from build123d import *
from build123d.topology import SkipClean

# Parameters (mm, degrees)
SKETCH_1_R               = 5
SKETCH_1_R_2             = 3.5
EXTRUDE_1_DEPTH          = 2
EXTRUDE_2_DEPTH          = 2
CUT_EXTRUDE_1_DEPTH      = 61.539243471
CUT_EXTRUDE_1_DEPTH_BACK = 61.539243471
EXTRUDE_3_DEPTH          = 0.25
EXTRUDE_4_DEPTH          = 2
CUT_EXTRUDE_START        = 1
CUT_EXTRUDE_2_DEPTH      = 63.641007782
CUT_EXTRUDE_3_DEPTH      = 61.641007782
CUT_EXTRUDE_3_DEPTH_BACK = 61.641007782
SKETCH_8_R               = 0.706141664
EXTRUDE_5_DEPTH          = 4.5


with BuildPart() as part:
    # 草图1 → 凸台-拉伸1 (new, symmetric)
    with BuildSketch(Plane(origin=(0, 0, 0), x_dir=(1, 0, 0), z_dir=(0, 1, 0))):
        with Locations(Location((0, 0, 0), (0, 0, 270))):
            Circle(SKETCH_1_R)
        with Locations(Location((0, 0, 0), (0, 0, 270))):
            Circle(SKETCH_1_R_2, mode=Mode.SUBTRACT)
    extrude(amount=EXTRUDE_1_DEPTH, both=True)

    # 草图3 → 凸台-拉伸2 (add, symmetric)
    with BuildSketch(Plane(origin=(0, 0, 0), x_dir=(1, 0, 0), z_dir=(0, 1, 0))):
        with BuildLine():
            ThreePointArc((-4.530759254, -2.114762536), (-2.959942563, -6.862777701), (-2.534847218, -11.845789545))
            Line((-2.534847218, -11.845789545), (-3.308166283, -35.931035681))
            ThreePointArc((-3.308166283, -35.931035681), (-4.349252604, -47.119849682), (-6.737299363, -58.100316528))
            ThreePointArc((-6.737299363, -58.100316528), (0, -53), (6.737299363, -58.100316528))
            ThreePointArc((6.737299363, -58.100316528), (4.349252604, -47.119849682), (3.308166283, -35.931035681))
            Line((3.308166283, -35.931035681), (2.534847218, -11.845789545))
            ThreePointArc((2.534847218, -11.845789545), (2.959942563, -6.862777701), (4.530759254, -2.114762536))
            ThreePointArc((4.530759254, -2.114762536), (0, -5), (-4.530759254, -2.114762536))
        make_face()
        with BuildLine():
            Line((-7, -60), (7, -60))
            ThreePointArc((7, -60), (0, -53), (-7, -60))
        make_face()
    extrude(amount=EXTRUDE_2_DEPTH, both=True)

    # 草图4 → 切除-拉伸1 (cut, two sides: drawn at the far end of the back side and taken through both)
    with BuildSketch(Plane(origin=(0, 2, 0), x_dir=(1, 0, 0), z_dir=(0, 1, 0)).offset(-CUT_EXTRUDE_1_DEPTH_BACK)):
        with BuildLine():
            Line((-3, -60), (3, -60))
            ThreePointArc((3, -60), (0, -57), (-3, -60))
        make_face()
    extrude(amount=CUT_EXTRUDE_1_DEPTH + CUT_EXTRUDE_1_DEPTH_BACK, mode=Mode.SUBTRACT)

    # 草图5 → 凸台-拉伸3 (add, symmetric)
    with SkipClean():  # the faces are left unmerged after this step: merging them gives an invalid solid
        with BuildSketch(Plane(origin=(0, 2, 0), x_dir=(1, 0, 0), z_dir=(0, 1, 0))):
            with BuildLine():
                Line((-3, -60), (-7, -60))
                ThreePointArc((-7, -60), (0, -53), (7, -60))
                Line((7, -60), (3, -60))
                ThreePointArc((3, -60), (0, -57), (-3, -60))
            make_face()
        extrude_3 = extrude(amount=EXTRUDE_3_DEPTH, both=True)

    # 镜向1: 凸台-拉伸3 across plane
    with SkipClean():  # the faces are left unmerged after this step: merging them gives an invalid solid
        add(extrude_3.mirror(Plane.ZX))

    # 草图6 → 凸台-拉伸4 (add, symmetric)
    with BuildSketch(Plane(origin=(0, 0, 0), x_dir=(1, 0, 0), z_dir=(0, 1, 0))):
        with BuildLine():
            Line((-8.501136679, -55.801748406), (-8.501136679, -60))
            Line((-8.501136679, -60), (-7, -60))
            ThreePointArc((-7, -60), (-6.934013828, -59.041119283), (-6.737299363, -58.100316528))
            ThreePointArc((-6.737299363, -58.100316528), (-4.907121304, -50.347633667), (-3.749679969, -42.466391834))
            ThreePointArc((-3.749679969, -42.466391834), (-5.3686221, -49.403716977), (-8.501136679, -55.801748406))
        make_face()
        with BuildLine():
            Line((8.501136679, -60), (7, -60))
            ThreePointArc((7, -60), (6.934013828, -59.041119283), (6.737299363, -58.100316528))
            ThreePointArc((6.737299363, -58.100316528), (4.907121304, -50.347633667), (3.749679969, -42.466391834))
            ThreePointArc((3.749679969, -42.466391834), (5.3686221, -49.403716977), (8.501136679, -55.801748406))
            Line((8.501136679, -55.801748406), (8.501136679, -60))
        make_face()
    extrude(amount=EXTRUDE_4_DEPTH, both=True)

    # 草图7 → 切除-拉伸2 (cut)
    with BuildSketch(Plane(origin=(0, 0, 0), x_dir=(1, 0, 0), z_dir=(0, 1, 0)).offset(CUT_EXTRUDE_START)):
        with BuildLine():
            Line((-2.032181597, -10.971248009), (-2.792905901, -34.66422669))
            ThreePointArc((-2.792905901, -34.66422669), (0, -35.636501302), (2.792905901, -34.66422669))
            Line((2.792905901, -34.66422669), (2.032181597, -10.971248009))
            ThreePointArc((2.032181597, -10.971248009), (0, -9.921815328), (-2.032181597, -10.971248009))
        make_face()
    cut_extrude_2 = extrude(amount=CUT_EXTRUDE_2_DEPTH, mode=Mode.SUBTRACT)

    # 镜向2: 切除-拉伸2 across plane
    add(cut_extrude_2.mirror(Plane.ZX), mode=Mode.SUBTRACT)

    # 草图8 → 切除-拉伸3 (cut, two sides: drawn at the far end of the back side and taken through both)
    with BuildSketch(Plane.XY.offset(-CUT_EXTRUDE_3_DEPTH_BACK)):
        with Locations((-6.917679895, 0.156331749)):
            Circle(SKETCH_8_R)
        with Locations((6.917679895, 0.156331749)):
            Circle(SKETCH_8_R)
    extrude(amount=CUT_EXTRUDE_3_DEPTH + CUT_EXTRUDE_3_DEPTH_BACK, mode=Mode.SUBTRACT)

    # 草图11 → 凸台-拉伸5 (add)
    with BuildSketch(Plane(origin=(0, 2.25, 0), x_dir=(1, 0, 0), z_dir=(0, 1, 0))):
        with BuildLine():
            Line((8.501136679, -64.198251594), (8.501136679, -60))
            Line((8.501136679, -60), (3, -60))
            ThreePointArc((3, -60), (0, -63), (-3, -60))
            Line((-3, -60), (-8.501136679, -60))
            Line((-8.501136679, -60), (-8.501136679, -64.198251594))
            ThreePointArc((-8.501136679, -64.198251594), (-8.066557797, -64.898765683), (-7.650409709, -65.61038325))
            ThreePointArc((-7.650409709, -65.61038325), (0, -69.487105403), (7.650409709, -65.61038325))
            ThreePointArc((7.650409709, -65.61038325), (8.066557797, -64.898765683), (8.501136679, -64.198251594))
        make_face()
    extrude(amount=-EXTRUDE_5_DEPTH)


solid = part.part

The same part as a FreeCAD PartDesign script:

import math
import FreeCAD as App
import Part
import Sketcher
from FreeCAD import Vector
Q = App.Units.Quantity

doc = App.newDocument("Part")
params = doc.addObject("Spreadsheet::Sheet", "Params")
for row, (alias, value) in enumerate([
    ("sketch1_diameter", "10 mm"),
    ("sketch1_diameter2", "7 mm"),
    ("pad1_length", "4 mm"),
    ("sketch2_radius", "7 mm"),
    ("sketch2_radius2", "7 mm"),
    ("sketch2_radius3", "5 mm"),
    ("pad2_length", "4 mm"),
    ("sketch3_radius", "3 mm"),
    ("sketch4_radius", "3 mm"),
    ("sketch4_radius2", "7 mm"),
    ("pad3_length", "0.5 mm"),
    ("sketch5_radius", "7 mm"),
    ("sketch5_radius2", "7 mm"),
    ("pad4_length", "4 mm"),
    ("pocket2_length", "63.641008 mm"),
    ("sketch8_radius", "3 mm"),
    ("pad5_length", "4.5 mm"),
], start=1):
    params.set(f"A{row}", alias)
    params.set(f"B{row}", "=" + value)
    params.setAlias(f"B{row}", alias)

body = doc.addObject("PartDesign::Body", "Body")

# Sketch on XZ plane
sketch1 = body.newObject("Sketcher::SketchObject", "Sketch")
sketch1.AttachmentSupport = (doc.getObject("XZ_Plane"), [""])
sketch1.MapMode = "FlatFace"
sketch1.addGeometry(Part.Circle(Vector(0, 0, 0), Vector(0, 0, 1), 5), False)
sketch1.addGeometry(Part.Circle(Vector(0, 0, 0), Vector(0, 0, 1), 3.5), False)
sketch1.addConstraint(Sketcher.Constraint("Coincident", 0, 3, -1, 1))
sketch1.addConstraint(Sketcher.Constraint("Coincident", 1, 3, -1, 1))
sketch1.addConstraint(Sketcher.Constraint("Diameter", 0, Q("10 mm")))
sketch1.addConstraint(Sketcher.Constraint("Diameter", 1, Q("7 mm")))
sketch1.setExpression("Constraints[2]", "Params.sketch1_diameter")
sketch1.setExpression("Constraints[3]", "Params.sketch1_diameter2")
pad1 = body.newObject("PartDesign::Pad", "Pad")
pad1.Profile = sketch1
pad1.setExpression("Length", "Params.pad1_length")
pad1.Midplane = True

# Sketch on XZ plane
sketch2 = body.newObject("Sketcher::SketchObject", "Sketch001")
sketch2.AttachmentSupport = (doc.getObject("XZ_Plane"), [""])
sketch2.MapMode = "FlatFace"
sketch2.addGeometry(Part.ArcOfCircle(Part.Circle(Vector(-23.908658, 11.159528, 0), Vector(0, 0, 1), 21.384826), math.radians(-25.021132), math.radians(1.838997)), False)
sketch2.addGeometry(Part.LineSegment(Vector(-2.534847, 11.84579, 0), Vector(-3.308166, 35.931036, 0)), False)
sketch2.addGeometry(Part.ArcOfCircle(Part.Circle(Vector(-95.905638, 32.957955, 0), Vector(0, 0, 1), 92.645189), math.radians(1.838997), math.radians(15.746601)), False)
sketch2.addGeometry(Part.ArcOfCircle(Part.Circle(Vector(0, 60, 0), Vector(0, 0, 1), 7), math.radians(180), math.radians(195.746601)), False)
sketch2.addGeometry(Part.LineSegment(Vector(-7, 60, 0), Vector(7, 60, 0)), False)
sketch2.addGeometry(Part.ArcOfCircle(Part.Circle(Vector(0, 60, 0), Vector(0, 0, 1), 7), math.radians(-15.746601), math.radians(0)), False)
sketch2.addGeometry(Part.ArcOfCircle(Part.Circle(Vector(95.905638, 32.957955, 0), Vector(0, 0, 1), 92.645189), math.radians(164.253399), math.radians(178.161003)), False)
sketch2.addGeometry(Part.LineSegment(Vector(3.308166, 35.931036, 0), Vector(2.534847, 11.84579, 0)), False)
sketch2.addGeometry(Part.ArcOfCircle(Part.Circle(Vector(23.908658, 11.159528, 0), Vector(0, 0, 1), 21.384826), math.radians(178.161003), math.radians(205.021132)), False)
sketch2.addGeometry(Part.ArcOfCircle(Part.Circle(Vector(0, 0, 0), Vector(0, 0, 1), 5), math.radians(25.021132), math.radians(154.978868)), False)
sketch2.addConstraint(Sketcher.Constraint("Coincident", 0, 2, 1, 1))
sketch2.addConstraint(Sketcher.Constraint("Coincident", 1, 2, 2, 1))
sketch2.addConstraint(Sketcher.Constraint("Coincident", 2, 2, 3, 2))
sketch2.addConstraint(Sketcher.Constraint("Coincident", 3, 1, 4, 1))
sketch2.addConstraint(Sketcher.Constraint("Coincident", 4, 2, 5, 2))
sketch2.addConstraint(Sketcher.Constraint("Coincident", 5, 1, 6, 1))
sketch2.addConstraint(Sketcher.Constraint("Coincident", 6, 2, 7, 1))
sketch2.addConstraint(Sketcher.Constraint("Coincident", 7, 2, 8, 1))
sketch2.addConstraint(Sketcher.Constraint("Coincident", 8, 2, 9, 1))
sketch2.addConstraint(Sketcher.Constraint("Coincident", 9, 2, 0, 1))
sketch2.addConstraint(Sketcher.Constraint("Horizontal", 4))
sketch2.addConstraint(Sketcher.Constraint("Coincident", 9, 3, -1, 1))
sketch2.addConstraint(Sketcher.Constraint("Coincident", 5, 3, 3, 3))
sketch2.addConstraint(Sketcher.Constraint("PointOnObject", 3, 3, -2))
sketch2.addConstraint(Sketcher.Constraint("Radius", 3, Q("7 mm")))
sketch2.addConstraint(Sketcher.Constraint("Radius", 5, Q("7 mm")))
sketch2.addConstraint(Sketcher.Constraint("Radius", 9, Q("5 mm")))
sketch2.addConstraint(Sketcher.Constraint("DistanceY", -1, 1, 3, 3, Q("60 mm")))
sketch2.addConstraint(Sketcher.Constraint("DistanceY", -1, 1, 3, 1, Q("60 mm")))
sketch2.addConstraint(Sketcher.Constraint("Radius", 2, Q("92.645189 mm")))
sketch2.addConstraint(Sketcher.Constraint("Radius", 6, Q("92.645189 mm")))
sketch2.addConstraint(Sketcher.Constraint("Radius", 0, Q("21.384826 mm")))
sketch2.addConstraint(Sketcher.Constraint("Radius", 8, Q("21.384826 mm")))
sketch2.addConstraint(Sketcher.Constraint("DistanceX", 2, 2, -1, 1, Q("6.737299 mm")))
sketch2.addConstraint(Sketcher.Constraint("DistanceX", -1, 1, 5, 1, Q("6.737299 mm")))
sketch2.addConstraint(Sketcher.Constraint("DistanceX", 8, 2, 8, 3, Q("19.377899 mm")))
sketch2.addConstraint(Sketcher.Constraint("DistanceX", 0, 3, 9, 2, Q("19.377899 mm")))
sketch2.addConstraint(Sketcher.Constraint("DistanceX", 0, 3, -1, 1, Q("23.908658 mm")))
sketch2.addConstraint(Sketcher.Constraint("DistanceX", -1, 1, 8, 3, Q("23.908658 mm")))
sketch2.addConstraint(Sketcher.Constraint("DistanceY", -1, 1, 0, 2, Q("11.84579 mm")))
sketch2.addConstraint(Sketcher.Constraint("DistanceY", -1, 1, 7, 2, Q("11.84579 mm")))
sketch2.addConstraint(Sketcher.Constraint("DistanceX", 2, 3, 0, 3, Q("71.996979 mm")))
sketch2.addConstraint(Sketcher.Constraint("DistanceX", 8, 3, 6, 3, Q("71.996979 mm")))
sketch2.addConstraint(Sketcher.Constraint("DistanceX", 1, 2, 0, 2, Q("0.773319 mm")))
sketch2.addConstraint(Sketcher.Constraint("DistanceY", 6, 2, 5, 1, Q("22.169281 mm")))
sketch2.setExpression("Constraints[14]", "Params.sketch2_radius")
sketch2.setExpression("Constraints[15]", "Params.sketch2_radius2")
sketch2.setExpression("Constraints[16]", "Params.sketch2_radius3")
pad2 = body.newObject("PartDesign::Pad", "Pad001")
pad2.Profile = sketch2
pad2.setExpression("Length", "Params.pad2_length")
pad2.Midplane = True

# Sketch on XZ plane
sketch3 = body.newObject("Sketcher::SketchObject", "Sketch002")
sketch3.AttachmentSupport = (doc.getObject("XZ_Plane"), [""])
sketch3.MapMode = "FlatFace"
sketch3.AttachmentOffset = App.Placement(Vector(0, 0, -2), App.Rotation())
sketch3.addGeometry(Part.LineSegment(Vector(-3, 60, 0), Vector(3, 60, 0)), False)
sketch3.addGeometry(Part.ArcOfCircle(Part.Circle(Vector(0, 60, 0), Vector(0, 0, 1), 3), math.radians(180), math.radians(360)), False)
sketch3.addConstraint(Sketcher.Constraint("Coincident", 0, 1, 1, 1))
sketch3.addConstraint(Sketcher.Constraint("Coincident", 1, 2, 0, 2))
sketch3.addConstraint(Sketcher.Constraint("Horizontal", 0))
sketch3.addConstraint(Sketcher.Constraint("PointOnObject", 1, 3, -2))
sketch3.addConstraint(Sketcher.Constraint("Horizontal", 1, 3, 0, 1))
sketch3.addConstraint(Sketcher.Constraint("Radius", 1, Q("3 mm")))
sketch3.addConstraint(Sketcher.Constraint("DistanceY", -1, 1, 1, 3, Q("60 mm")))
sketch3.setExpression("Constraints[5]", "Params.sketch3_radius")
pocket1 = body.newObject("PartDesign::Pocket", "Pocket")
pocket1.Profile = sketch3
pocket1.Type = "ThroughAll"
pocket1.Midplane = True

# Sketch on XZ plane
sketch4 = body.newObject("Sketcher::SketchObject", "Sketch003")
sketch4.AttachmentSupport = (doc.getObject("XZ_Plane"), [""])
sketch4.MapMode = "FlatFace"
sketch4.AttachmentOffset = App.Placement(Vector(0, 0, -2), App.Rotation())
sketch4.addGeometry(Part.LineSegment(Vector(-7, 60, 0), Vector(-3, 60, 0)), False)
sketch4.addGeometry(Part.ArcOfCircle(Part.Circle(Vector(0, 60, 0), Vector(0, 0, 1), 3), math.radians(180), math.radians(360)), False)
sketch4.addGeometry(Part.LineSegment(Vector(3, 60, 0), Vector(7, 60, 0)), False)
sketch4.addGeometry(Part.ArcOfCircle(Part.Circle(Vector(0, 60, 0), Vector(0, 0, 1), 7), math.radians(180), math.radians(360)), False)
sketch4.addConstraint(Sketcher.Constraint("Coincident", 0, 2, 1, 1))
sketch4.addConstraint(Sketcher.Constraint("Coincident", 1, 2, 2, 1))
sketch4.addConstraint(Sketcher.Constraint("Coincident", 2, 2, 3, 2))
sketch4.addConstraint(Sketcher.Constraint("Coincident", 3, 1, 0, 1))
sketch4.addConstraint(Sketcher.Constraint("Horizontal", 0))
sketch4.addConstraint(Sketcher.Constraint("Horizontal", 2))
sketch4.addConstraint(Sketcher.Constraint("Coincident", 3, 3, 1, 3))
sketch4.addConstraint(Sketcher.Constraint("Symmetric", 0, 2, 1, 2, -2))
sketch4.addConstraint(Sketcher.Constraint("Horizontal", 3, 3, 0, 2))
sketch4.addConstraint(Sketcher.Constraint("Radius", 1, Q("3 mm")))
sketch4.addConstraint(Sketcher.Constraint("Radius", 3, Q("7 mm")))
sketch4.addConstraint(Sketcher.Constraint("DistanceY", -1, 1, 1, 3, Q("60 mm")))
sketch4.setExpression("Constraints[9]", "Params.sketch4_radius")
sketch4.setExpression("Constraints[10]", "Params.sketch4_radius2")
pad3 = body.newObject("PartDesign::Pad", "Pad002")
pad3.Profile = sketch4
pad3.setExpression("Length", "Params.pad3_length")
pad3.Midplane = True
doc.recompute()

mirrored = body.newObject("PartDesign::Mirrored", "Mirrored")
mirrored.Originals = [pad3]
mirrored.MirrorPlane = (doc.getObject("XZ_Plane"), [""])
body.Tip = mirrored

# Sketch on XZ plane
sketch5 = body.newObject("Sketcher::SketchObject", "Sketch004")
sketch5.AttachmentSupport = (doc.getObject("XZ_Plane"), [""])
sketch5.MapMode = "FlatFace"
sketch5.addGeometry(Part.LineSegment(Vector(-8.501137, 55.801748, 0), Vector(-8.501137, 60, 0)), False)
sketch5.addGeometry(Part.LineSegment(Vector(-8.501137, 60, 0), Vector(-7, 60, 0)), False)
sketch5.addGeometry(Part.ArcOfCircle(Part.Circle(Vector(0, 60, 0), Vector(0, 0, 1), 7), math.radians(-180), math.radians(-164.253399)), False)
sketch5.addGeometry(Part.ArcOfCircle(Part.Circle(Vector(-95.905638, 32.957955, 0), Vector(0, 0, 1), 92.645189), math.radians(5.8908), math.radians(15.746601)), False)
sketch5.addGeometry(Part.ArcOfCircle(Part.Circle(Vector(-35.119863, 38.803195, 0), Vector(0, 0, 1), 31.583341), math.radians(6.660446), math.radians(32.562048)), False)
sketch5.addGeometry(Part.LineSegment(Vector(7, 60, 0), Vector(8.501137, 60, 0)), False)
sketch5.addGeometry(Part.LineSegment(Vector(8.501137, 60, 0), Vector(8.501137, 55.801748, 0)), False)
sketch5.addGeometry(Part.ArcOfCircle(Part.Circle(Vector(35.119863, 38.803195, 0), Vector(0, 0, 1), 31.583341), math.radians(147.437952), math.radians(173.339554)), False)
sketch5.addGeometry(Part.ArcOfCircle(Part.Circle(Vector(95.905638, 32.957955, 0), Vector(0, 0, 1), 92.645189), math.radians(164.253399), math.radians(174.1092)), False)
sketch5.addGeometry(Part.ArcOfCircle(Part.Circle(Vector(0, 60, 0), Vector(0, 0, 1), 7), math.radians(-15.746601), math.radians(0)), False)
sketch5.addConstraint(Sketcher.Constraint("Coincident", 0, 2, 1, 1))
sketch5.addConstraint(Sketcher.Constraint("Coincident", 1, 2, 2, 1))
sketch5.addConstraint(Sketcher.Constraint("Coincident", 2, 2, 3, 2))
sketch5.addConstraint(Sketcher.Constraint("Coincident", 3, 1, 4, 1))
sketch5.addConstraint(Sketcher.Constraint("Coincident", 4, 2, 0, 1))
sketch5.addConstraint(Sketcher.Constraint("Coincident", 5, 2, 6, 1))
sketch5.addConstraint(Sketcher.Constraint("Coincident", 6, 2, 7, 1))
sketch5.addConstraint(Sketcher.Constraint("Coincident", 7, 2, 8, 2))
sketch5.addConstraint(Sketcher.Constraint("Coincident", 8, 1, 9, 1))
sketch5.addConstraint(Sketcher.Constraint("Coincident", 9, 2, 5, 1))
sketch5.addConstraint(Sketcher.Constraint("Vertical", 0))
sketch5.addConstraint(Sketcher.Constraint("Horizontal", 1))
sketch5.addConstraint(Sketcher.Constraint("Horizontal", 5))
sketch5.addConstraint(Sketcher.Constraint("Vertical", 6))
sketch5.addConstraint(Sketcher.Constraint("Coincident", 9, 3, 2, 3))
sketch5.addConstraint(Sketcher.Constraint("PointOnObject", 2, 3, -2))
sketch5.addConstraint(Sketcher.Constraint("Radius", 2, Q("7 mm")))
sketch5.addConstraint(Sketcher.Constraint("Radius", 9, Q("7 mm")))
sketch5.addConstraint(Sketcher.Constraint("DistanceY", -1, 1, 2, 3, Q("60 mm")))
sketch5.addConstraint(Sketcher.Constraint("DistanceY", -1, 1, 0, 2, Q("60 mm")))
sketch5.addConstraint(Sketcher.Constraint("DistanceY", -1, 1, 5, 2, Q("60 mm")))
sketch5.addConstraint(Sketcher.Constraint("Radius", 3, Q("92.645189 mm")))
sketch5.addConstraint(Sketcher.Constraint("Radius", 4, Q("31.583341 mm")))
sketch5.addConstraint(Sketcher.Constraint("Radius", 7, Q("31.583341 mm")))
sketch5.addConstraint(Sketcher.Constraint("Radius", 8, Q("92.645189 mm")))
sketch5.addConstraint(Sketcher.Constraint("DistanceX", 0, 2, 7, 3, Q("43.621 mm")))
sketch5.addConstraint(Sketcher.Constraint("DistanceY", 0, 1, 0, 2, Q("4.198252 mm")))
sketch5.addConstraint(Sketcher.Constraint("DistanceY", 6, 2, 6, 1, Q("4.198252 mm")))
sketch5.addConstraint(Sketcher.Constraint("DistanceX", 2, 2, -1, 1, Q("6.737299 mm")))
sketch5.addConstraint(Sketcher.Constraint("DistanceX", -1, 1, 8, 1, Q("6.737299 mm")))
sketch5.addConstraint(Sketcher.Constraint("DistanceX", 3, 3, 7, 3, Q("131.025501 mm")))
sketch5.addConstraint(Sketcher.Constraint("DistanceX", 4, 3, 8, 3, Q("131.025501 mm")))
sketch5.addConstraint(Sketcher.Constraint("DistanceX", 1, 1, 1, 2, Q("1.501137 mm")))
sketch5.addConstraint(Sketcher.Constraint("DistanceX", 5, 1, 5, 2, Q("1.501137 mm")))
sketch5.addConstraint(Sketcher.Constraint("DistanceX", 3, 1, -1, 1, Q("3.74968 mm")))
sketch5.setExpression("Constraints[16]", "Params.sketch5_radius")
sketch5.setExpression("Constraints[17]", "Params.sketch5_radius2")
pad4 = body.newObject("PartDesign::Pad", "Pad003")
pad4.Profile = sketch5
pad4.setExpression("Length", "Params.pad4_length")
pad4.Midplane = True

# Sketch on XZ plane
sketch6 = body.newObject("Sketcher::SketchObject", "Sketch005")
sketch6.AttachmentSupport = (doc.getObject("XZ_Plane"), [""])
sketch6.MapMode = "FlatFace"
sketch6.AttachmentOffset = App.Placement(Vector(0, 0, -1), App.Rotation())
sketch6.addGeometry(Part.LineSegment(Vector(-2, 11, 0), Vector(-2.8, 34.7, 0)), False)
sketch6.addGeometry(Part.ArcOfCircle(Part.Circle(Vector(0, 31.1, 0), Vector(0, 0, 1), 4.5), math.radians(52), math.radians(128)), False)
sketch6.addGeometry(Part.LineSegment(Vector(2.8, 34.7, 0), Vector(2, 11, 0)), False)
sketch6.addGeometry(Part.ArcOfCircle(Part.Circle(Vector(0, 12.4, 0), Vector(0, 0, 1), 2.5), math.radians(-145), math.radians(-35)), False)
sketch6.addConstraint(Sketcher.Constraint("Coincident", 0, 2, 1, 2))
sketch6.addConstraint(Sketcher.Constraint("Coincident", 1, 1, 2, 1))
sketch6.addConstraint(Sketcher.Constraint("Coincident", 2, 2, 3, 2))
sketch6.addConstraint(Sketcher.Constraint("Coincident", 3, 1, 0, 1))
sketch6.addConstraint(Sketcher.Constraint("Symmetric", 0, 2, 1, 1, -2))
sketch6.addConstraint(Sketcher.Constraint("Symmetric", 2, 2, 3, 1, -2))
sketch6.addConstraint(Sketcher.Constraint("Radius", 1, Q("4.497516 mm")))
sketch6.addConstraint(Sketcher.Constraint("Radius", 3, Q("2.492333 mm")))
sketch6.addConstraint(Sketcher.Constraint("DistanceY", 2, 2, 3, 3, Q("1.4429 mm")))
sketch6.addConstraint(Sketcher.Constraint("Distance", 0, Q("23.705188 mm")))
sketch6.addConstraint(Sketcher.Constraint("DistanceY", -1, 1, 3, 3, Q("12.414148 mm")))
sketch6.addConstraint(Sketcher.Constraint("DistanceY", 1, 3, 0, 2, Q("3.525241 mm")))
pocket2 = body.newObject("PartDesign::Pocket", "Pocket001")
pocket2.Profile = sketch6
pocket2.setExpression("Length", "Params.pocket2_length")
doc.recompute()

mirrored2 = body.newObject("PartDesign::Mirrored", "Mirrored001")
mirrored2.Originals = [pocket2]
mirrored2.MirrorPlane = (doc.getObject("XZ_Plane"), [""])
body.Tip = mirrored2

# Sketch on XY plane
sketch7 = body.newObject("Sketcher::SketchObject", "Sketch006")
sketch7.AttachmentSupport = (doc.getObject("XY_Plane"), [""])
sketch7.MapMode = "FlatFace"
sketch7.addGeometry(Part.Circle(Vector(-6.9, 0.2, 0), Vector(0, 0, 1), 0.7), False)
sketch7.addGeometry(Part.Circle(Vector(6.9, 0.2, 0), Vector(0, 0, 1), 0.7), False)
sketch7.addConstraint(Sketcher.Constraint("Equal", 0, 1))
sketch7.addConstraint(Sketcher.Constraint("Symmetric", 0, 3, 1, 3, -2))
sketch7.addConstraint(Sketcher.Constraint("Diameter", 0, Q("1.412283 mm")))
sketch7.addConstraint(Sketcher.Constraint("DistanceX", 0, 3, -1, 1, Q("6.91768 mm")))
sketch7.addConstraint(Sketcher.Constraint("DistanceY", -1, 1, 0, 3, Q("0.156332 mm")))
pocket3 = body.newObject("PartDesign::Pocket", "Pocket002")
pocket3.Profile = sketch7
pocket3.Type = "ThroughAll"
pocket3.Midplane = True

# Sketch on XZ plane
sketch8 = body.newObject("Sketcher::SketchObject", "Sketch007")
sketch8.AttachmentSupport = (doc.getObject("XZ_Plane"), [""])
sketch8.MapMode = "FlatFace"
sketch8.AttachmentOffset = App.Placement(Vector(0, 0, -2.25), App.Rotation())
sketch8.addGeometry(Part.LineSegment(Vector(8.5, 64.2, 0), Vector(8.5, 60, 0)), False)
sketch8.addGeometry(Part.LineSegment(Vector(8.5, 60, 0), Vector(3, 60, 0)), False)
sketch8.addGeometry(Part.ArcOfCircle(Part.Circle(Vector(0, 60, 0), Vector(0, 0, 1), 3), math.radians(0), math.radians(180)), False)
sketch8.addGeometry(Part.LineSegment(Vector(-3, 60, 0), Vector(-8.5, 60, 0)), False)
sketch8.addGeometry(Part.LineSegment(Vector(-8.5, 60, 0), Vector(-8.5, 64.2, 0)), False)
sketch8.addGeometry(Part.ArcOfCircle(Part.Circle(Vector(-35.1, 81.2, 0), Vector(0, 0, 1), 31.6), math.radians(-32.56), math.radians(-29.57)), False)
sketch8.addGeometry(Part.ArcOfCircle(Part.Circle(Vector(0, 60, 0), Vector(0, 0, 1), 9.5), math.radians(36), math.radians(144)), False)
sketch8.addGeometry(Part.ArcOfCircle(Part.Circle(Vector(35.1, 81.2, 0), Vector(0, 0, 1), 31.6), math.radians(-150.43), math.radians(-147.44)), False)
sketch8.addConstraint(Sketcher.Constraint("Coincident", 0, 2, 1, 1))
sketch8.addConstraint(Sketcher.Constraint("Coincident", 1, 2, 2, 1))
sketch8.addConstraint(Sketcher.Constraint("Coincident", 2, 2, 3, 1))
sketch8.addConstraint(Sketcher.Constraint("Coincident", 3, 2, 4, 1))
sketch8.addConstraint(Sketcher.Constraint("Coincident", 4, 2, 5, 1))
sketch8.addConstraint(Sketcher.Constraint("Coincident", 5, 2, 6, 2))
sketch8.addConstraint(Sketcher.Constraint("Coincident", 6, 1, 7, 1))
sketch8.addConstraint(Sketcher.Constraint("Coincident", 7, 2, 0, 1))
sketch8.addConstraint(Sketcher.Constraint("Vertical", 0))
sketch8.addConstraint(Sketcher.Constraint("Horizontal", 1))
sketch8.addConstraint(Sketcher.Constraint("Horizontal", 3))
sketch8.addConstraint(Sketcher.Constraint("Vertical", 4))
sketch8.addConstraint(Sketcher.Constraint("Coincident", 6, 3, 2, 3))
sketch8.addConstraint(Sketcher.Constraint("Equal", 5, 7))
sketch8.addConstraint(Sketcher.Constraint("Symmetric", 5, 3, 7, 3, -2))
sketch8.addConstraint(Sketcher.Constraint("Symmetric", 1, 2, 2, 2, -2))
sketch8.addConstraint(Sketcher.Constraint("Horizontal", 6, 3, 0, 2))
sketch8.addConstraint(Sketcher.Constraint("Horizontal", 4, 2, 7, 2))
sketch8.addConstraint(Sketcher.Constraint("Radius", 2, Q("3 mm")))
sketch8.addConstraint(Sketcher.Constraint("DistanceY", -1, 1, 2, 3, Q("60 mm")))
sketch8.addConstraint(Sketcher.Constraint("Radius", 5, Q("31.58334 mm")))
sketch8.addConstraint(Sketcher.Constraint("Radius", 6, Q("9.487105 mm")))
sketch8.addConstraint(Sketcher.Constraint("DistanceX", 5, 3, 0, 2, Q("43.620999 mm")))
sketch8.addConstraint(Sketcher.Constraint("DistanceY", 0, 2, 0, 1, Q("4.198252 mm")))
sketch8.addConstraint(Sketcher.Constraint("DistanceX", 1, 2, 1, 1, Q("5.501137 mm")))
sketch8.setExpression("Constraints[18]", "Params.sketch8_radius")
pad5 = body.newObject("PartDesign::Pad", "Pad004")
pad5.Profile = sketch8
pad5.setExpression("Length", "Params.pad5_length")

doc.recompute()
